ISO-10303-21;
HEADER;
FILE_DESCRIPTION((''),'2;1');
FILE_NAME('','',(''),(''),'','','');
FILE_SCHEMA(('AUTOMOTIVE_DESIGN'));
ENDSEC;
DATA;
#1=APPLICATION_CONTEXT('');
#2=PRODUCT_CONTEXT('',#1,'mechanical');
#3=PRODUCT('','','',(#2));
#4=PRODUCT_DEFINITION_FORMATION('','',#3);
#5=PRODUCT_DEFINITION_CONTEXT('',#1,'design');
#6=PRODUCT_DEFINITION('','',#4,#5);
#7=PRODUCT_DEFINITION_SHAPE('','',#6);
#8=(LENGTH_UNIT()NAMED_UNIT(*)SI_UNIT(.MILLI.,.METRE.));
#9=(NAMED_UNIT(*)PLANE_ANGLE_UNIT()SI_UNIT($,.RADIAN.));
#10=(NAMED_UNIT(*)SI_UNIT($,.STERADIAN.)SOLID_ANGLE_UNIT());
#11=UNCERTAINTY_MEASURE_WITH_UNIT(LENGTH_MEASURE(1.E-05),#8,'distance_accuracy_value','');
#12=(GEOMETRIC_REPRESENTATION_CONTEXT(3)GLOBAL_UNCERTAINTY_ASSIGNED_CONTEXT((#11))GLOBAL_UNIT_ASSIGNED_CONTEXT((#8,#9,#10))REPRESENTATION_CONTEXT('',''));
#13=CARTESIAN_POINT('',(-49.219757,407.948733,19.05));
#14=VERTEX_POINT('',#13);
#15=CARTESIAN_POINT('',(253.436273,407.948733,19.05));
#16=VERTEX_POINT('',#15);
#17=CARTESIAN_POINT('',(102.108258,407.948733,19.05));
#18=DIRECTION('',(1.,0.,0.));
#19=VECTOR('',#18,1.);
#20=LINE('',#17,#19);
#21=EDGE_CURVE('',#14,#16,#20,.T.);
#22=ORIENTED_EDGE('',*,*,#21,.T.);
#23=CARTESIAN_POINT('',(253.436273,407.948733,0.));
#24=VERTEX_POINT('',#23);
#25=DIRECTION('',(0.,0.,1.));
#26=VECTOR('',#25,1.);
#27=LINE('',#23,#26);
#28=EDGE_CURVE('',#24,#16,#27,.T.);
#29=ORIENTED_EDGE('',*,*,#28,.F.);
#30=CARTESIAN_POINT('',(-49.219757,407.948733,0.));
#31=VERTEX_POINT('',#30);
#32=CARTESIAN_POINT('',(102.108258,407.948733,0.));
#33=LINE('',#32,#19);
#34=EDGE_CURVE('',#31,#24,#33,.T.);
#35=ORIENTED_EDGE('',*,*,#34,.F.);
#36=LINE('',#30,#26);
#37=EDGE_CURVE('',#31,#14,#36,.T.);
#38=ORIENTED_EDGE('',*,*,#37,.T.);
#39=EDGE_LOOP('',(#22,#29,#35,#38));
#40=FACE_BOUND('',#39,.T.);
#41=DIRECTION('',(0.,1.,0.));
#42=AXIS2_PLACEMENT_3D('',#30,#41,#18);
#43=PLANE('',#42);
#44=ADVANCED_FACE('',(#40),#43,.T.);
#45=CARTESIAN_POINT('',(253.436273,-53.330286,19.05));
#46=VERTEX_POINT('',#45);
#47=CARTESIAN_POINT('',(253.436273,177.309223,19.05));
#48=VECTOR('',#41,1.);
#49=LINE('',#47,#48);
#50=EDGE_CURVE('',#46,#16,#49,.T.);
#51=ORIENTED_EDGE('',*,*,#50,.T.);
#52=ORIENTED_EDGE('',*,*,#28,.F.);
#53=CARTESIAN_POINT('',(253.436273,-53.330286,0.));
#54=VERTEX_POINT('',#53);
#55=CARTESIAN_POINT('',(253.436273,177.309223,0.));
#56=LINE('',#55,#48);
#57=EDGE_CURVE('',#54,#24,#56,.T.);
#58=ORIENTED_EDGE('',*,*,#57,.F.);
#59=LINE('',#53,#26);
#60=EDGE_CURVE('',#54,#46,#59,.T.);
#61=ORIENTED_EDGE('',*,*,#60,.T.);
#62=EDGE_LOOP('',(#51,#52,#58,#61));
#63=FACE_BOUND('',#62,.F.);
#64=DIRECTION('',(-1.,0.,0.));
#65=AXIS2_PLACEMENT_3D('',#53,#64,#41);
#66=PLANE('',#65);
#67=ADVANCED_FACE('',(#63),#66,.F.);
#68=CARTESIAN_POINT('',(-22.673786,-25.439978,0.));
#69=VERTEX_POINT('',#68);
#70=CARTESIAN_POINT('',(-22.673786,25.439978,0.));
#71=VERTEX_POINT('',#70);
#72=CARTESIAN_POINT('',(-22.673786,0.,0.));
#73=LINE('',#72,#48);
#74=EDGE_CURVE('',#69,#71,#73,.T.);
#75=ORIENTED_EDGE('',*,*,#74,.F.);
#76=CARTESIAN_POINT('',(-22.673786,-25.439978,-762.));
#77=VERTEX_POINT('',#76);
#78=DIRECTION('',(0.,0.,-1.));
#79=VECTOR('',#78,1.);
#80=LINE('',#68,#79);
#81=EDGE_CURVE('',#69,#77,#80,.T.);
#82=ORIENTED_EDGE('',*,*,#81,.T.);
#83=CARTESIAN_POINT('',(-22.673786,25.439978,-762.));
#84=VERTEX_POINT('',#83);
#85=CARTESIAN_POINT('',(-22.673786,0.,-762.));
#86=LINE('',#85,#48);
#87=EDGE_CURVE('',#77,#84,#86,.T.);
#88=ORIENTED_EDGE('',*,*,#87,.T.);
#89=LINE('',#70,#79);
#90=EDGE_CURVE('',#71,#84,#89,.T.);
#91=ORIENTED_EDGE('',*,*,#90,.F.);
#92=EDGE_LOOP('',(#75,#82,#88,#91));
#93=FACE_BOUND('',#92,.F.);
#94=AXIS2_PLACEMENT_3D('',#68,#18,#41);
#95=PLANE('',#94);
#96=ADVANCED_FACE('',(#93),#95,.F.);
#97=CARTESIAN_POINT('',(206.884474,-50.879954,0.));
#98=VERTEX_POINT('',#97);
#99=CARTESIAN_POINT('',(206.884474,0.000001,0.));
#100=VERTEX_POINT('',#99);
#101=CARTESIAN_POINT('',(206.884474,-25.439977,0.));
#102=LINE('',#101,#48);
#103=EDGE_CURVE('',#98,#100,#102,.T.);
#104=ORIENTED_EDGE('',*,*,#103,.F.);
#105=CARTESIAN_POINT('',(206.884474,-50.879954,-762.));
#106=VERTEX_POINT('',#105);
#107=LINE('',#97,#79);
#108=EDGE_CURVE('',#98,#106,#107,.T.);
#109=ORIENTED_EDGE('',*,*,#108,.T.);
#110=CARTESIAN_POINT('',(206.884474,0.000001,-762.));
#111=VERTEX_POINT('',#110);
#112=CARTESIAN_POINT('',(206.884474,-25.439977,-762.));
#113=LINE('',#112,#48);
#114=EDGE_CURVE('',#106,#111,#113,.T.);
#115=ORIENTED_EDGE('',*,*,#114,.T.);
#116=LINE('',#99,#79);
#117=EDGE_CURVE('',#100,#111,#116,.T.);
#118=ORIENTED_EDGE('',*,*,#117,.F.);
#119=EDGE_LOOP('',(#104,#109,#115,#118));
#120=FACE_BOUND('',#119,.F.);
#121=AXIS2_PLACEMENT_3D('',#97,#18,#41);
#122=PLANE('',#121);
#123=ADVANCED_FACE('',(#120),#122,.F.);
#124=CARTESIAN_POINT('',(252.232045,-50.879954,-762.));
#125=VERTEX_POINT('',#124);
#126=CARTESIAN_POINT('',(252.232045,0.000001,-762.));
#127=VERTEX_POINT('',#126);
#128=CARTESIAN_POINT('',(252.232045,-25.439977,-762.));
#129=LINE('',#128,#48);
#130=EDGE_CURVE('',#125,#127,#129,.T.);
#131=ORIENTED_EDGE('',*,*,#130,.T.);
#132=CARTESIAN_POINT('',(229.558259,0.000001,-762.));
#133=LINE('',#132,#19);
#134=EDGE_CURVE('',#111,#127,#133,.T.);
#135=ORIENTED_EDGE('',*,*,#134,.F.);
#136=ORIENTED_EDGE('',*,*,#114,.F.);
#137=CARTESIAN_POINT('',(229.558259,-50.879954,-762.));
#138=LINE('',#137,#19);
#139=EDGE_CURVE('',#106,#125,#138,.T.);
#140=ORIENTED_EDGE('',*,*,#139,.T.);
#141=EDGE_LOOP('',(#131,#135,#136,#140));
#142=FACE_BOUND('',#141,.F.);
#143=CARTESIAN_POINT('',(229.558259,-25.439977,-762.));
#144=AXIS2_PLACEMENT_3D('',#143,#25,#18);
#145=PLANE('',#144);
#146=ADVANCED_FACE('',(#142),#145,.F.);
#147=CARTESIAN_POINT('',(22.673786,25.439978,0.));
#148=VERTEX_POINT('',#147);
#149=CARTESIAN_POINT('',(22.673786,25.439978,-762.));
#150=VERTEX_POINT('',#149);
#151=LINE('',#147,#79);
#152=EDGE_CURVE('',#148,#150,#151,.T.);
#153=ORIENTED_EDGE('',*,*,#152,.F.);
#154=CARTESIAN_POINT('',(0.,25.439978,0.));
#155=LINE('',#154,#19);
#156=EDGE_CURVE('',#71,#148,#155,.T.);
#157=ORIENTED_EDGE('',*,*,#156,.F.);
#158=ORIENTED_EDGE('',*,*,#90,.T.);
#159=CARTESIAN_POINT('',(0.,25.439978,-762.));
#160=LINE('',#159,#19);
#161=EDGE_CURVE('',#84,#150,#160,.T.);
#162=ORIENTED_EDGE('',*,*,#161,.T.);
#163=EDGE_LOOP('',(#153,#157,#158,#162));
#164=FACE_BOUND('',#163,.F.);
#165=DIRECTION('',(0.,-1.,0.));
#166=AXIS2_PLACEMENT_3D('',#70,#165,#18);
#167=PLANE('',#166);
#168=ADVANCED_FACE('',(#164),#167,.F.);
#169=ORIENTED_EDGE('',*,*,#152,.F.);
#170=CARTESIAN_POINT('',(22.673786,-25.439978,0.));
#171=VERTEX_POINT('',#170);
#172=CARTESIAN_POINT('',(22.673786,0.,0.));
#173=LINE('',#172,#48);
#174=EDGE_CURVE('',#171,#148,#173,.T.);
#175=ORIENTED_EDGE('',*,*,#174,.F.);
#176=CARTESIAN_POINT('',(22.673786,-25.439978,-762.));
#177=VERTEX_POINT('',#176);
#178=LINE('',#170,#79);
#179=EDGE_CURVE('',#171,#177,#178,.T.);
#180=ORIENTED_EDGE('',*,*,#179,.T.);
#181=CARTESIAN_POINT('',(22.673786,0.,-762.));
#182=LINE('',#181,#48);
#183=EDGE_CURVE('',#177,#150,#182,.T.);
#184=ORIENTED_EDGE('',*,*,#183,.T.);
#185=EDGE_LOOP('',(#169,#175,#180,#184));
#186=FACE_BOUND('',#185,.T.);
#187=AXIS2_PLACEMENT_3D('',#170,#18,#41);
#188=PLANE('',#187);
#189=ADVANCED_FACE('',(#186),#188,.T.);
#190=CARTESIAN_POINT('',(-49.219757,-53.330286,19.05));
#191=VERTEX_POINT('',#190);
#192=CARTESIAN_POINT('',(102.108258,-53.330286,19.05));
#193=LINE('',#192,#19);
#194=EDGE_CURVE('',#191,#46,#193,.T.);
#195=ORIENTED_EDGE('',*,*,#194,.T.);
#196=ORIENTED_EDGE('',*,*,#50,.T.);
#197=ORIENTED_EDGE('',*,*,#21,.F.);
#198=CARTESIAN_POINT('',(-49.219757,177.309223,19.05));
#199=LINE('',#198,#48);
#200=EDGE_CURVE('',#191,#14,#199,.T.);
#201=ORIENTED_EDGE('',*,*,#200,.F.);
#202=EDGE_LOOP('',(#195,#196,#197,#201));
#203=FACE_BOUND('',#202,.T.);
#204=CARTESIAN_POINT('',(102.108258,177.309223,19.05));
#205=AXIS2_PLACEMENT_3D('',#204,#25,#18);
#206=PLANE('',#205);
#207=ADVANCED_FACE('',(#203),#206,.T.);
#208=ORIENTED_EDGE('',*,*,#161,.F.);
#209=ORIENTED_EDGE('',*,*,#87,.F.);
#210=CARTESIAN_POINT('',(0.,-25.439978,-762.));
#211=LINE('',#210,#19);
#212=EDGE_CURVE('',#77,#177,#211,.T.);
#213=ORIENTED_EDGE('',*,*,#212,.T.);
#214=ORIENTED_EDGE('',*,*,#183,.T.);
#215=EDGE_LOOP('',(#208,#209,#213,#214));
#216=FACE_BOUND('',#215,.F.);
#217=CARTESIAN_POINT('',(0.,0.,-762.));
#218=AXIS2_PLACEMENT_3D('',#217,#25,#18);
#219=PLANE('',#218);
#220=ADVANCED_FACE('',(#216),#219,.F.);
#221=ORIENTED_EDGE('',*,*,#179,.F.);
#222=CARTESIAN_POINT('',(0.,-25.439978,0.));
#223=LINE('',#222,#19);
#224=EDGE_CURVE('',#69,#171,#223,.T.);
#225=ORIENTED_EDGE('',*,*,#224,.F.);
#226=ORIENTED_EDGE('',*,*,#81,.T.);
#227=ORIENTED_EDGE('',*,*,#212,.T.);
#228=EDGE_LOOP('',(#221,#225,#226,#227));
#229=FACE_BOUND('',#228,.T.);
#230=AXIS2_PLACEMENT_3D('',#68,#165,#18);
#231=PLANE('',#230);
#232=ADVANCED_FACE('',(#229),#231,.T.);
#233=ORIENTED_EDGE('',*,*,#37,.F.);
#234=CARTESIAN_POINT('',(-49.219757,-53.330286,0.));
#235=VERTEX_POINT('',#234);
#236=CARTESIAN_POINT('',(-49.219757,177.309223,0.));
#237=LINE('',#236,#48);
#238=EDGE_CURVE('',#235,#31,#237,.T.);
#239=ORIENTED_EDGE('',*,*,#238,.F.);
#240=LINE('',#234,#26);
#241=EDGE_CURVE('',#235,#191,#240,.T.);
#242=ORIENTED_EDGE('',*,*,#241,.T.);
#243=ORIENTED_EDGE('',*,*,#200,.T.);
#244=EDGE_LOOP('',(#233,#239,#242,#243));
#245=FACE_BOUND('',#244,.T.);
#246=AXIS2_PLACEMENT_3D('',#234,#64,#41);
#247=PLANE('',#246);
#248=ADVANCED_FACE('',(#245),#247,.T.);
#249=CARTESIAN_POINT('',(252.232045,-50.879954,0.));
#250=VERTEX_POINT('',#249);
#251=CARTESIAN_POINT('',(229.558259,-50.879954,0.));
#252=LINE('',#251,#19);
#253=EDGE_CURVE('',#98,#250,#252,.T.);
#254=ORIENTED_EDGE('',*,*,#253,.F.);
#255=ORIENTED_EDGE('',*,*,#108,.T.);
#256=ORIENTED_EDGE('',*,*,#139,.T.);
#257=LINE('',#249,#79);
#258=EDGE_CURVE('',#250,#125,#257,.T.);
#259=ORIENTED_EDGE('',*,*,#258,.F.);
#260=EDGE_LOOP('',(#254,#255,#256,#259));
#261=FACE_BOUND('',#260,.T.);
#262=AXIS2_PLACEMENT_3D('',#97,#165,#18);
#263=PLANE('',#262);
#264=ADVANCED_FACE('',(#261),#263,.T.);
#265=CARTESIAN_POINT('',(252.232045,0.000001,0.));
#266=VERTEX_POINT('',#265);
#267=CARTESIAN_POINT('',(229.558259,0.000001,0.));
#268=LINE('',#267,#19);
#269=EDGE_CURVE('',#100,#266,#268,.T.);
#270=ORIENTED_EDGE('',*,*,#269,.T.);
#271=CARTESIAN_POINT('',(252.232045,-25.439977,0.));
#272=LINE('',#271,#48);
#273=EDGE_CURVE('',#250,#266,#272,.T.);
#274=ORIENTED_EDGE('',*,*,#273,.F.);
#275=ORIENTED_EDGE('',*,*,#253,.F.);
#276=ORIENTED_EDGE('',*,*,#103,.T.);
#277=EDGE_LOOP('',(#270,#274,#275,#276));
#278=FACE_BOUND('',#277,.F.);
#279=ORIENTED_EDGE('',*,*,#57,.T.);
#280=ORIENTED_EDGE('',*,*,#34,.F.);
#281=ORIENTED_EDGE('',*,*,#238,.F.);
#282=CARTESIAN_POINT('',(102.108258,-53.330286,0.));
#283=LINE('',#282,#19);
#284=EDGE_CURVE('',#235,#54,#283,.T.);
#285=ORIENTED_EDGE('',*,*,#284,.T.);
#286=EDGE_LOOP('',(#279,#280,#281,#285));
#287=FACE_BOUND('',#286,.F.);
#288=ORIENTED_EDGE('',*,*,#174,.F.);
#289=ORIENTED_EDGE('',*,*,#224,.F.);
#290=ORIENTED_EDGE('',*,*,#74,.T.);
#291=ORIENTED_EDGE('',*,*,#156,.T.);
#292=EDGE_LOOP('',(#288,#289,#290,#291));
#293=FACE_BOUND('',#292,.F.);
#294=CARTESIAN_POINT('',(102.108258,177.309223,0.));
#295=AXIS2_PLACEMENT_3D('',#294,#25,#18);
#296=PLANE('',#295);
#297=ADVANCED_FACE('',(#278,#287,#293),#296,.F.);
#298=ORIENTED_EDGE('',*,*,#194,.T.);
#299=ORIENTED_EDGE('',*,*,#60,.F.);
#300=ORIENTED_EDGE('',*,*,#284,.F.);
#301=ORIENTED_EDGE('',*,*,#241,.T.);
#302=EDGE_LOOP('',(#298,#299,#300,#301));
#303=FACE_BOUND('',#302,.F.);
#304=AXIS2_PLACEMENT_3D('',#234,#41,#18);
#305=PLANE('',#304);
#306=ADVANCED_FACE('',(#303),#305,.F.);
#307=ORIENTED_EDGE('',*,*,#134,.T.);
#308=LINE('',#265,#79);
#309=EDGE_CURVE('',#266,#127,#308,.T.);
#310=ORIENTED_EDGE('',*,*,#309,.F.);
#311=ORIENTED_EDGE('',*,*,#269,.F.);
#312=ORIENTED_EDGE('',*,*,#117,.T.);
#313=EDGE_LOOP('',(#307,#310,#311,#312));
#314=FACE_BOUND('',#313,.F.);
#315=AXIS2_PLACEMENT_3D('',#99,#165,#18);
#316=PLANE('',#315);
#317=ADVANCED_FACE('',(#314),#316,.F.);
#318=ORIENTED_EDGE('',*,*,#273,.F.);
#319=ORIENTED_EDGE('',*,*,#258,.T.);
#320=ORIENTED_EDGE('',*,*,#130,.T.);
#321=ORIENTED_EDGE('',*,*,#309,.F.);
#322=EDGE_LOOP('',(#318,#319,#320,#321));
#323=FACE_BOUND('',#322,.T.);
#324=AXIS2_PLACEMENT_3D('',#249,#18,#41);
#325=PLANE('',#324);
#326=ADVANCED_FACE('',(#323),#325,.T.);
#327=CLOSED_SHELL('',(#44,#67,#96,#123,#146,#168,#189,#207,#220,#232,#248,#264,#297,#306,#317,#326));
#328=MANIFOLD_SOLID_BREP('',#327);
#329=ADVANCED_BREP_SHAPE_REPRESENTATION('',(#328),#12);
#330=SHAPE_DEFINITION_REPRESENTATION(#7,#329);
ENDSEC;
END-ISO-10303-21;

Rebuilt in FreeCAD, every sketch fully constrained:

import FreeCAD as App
import Part
import Sketcher
Q = App.Units.Quantity


def add_polygon(sketch, points):
    """Adds a closed chain of lines whose ends are joined by coincident constraints."""
    first, n = sketch.GeometryCount, len(points)
    for a, b in zip(points, points[1:] + points[:1]):
        sketch.addGeometry(Part.LineSegment(App.Vector(*a, 0), App.Vector(*b, 0)), False)
    for i in range(n):
        sketch.addConstraint(Sketcher.Constraint("Coincident", first + i, 2, first + (i + 1) % n, 1))

doc = App.newDocument("Part")
params = doc.addObject("Spreadsheet::Sheet", "Params")
for row, (alias, value) in enumerate([
    ("pad1_length", "0.75 in"),
    ("pad2_length", "30 in"),
], start=1):
    params.set(f"A{row}", alias)
    params.set(f"B{row}", "=" + value)
    params.setAlias(f"B{row}", alias)

body = doc.addObject("PartDesign::Body", "Body")

# Sketch on XY plane
sketch1 = body.newObject("Sketcher::SketchObject", "Sketch")
sketch1.AttachmentSupport = (doc.getObject("XY_Plane"), [""])
sketch1.MapMode = "FlatFace"
add_polygon(sketch1, [(-49.219757, 407.948733), (-49.219757, -53.330286), (253.436273, -53.330286), (253.436273, 407.948733)])  # lines 0-3
sketch1.addConstraint([
    Sketcher.Constraint("Vertical", 0),
    Sketcher.Constraint("Horizontal", 1),
    Sketcher.Constraint("Vertical", 2),
    Sketcher.Constraint("Horizontal", 3),
    Sketcher.Constraint("DistanceX", 1, 1, 1, 2, Q("302.65603 mm")),
    Sketcher.Constraint("DistanceY", 0, 2, 0, 1, Q("461.279019 mm")),
    Sketcher.Constraint("DistanceX", 0, 2, -1, 1, Q("49.219757 mm")),
    Sketcher.Constraint("DistanceY", 0, 2, -1, 1, Q("53.330286 mm")),
])
pad1 = body.newObject("PartDesign::Pad", "Pad")
pad1.Profile = sketch1
pad1.setExpression("Length", "Params.pad1_length")

# Sketch on XY plane
sketch2 = body.newObject("Sketcher::SketchObject", "Sketch001")
sketch2.AttachmentSupport = (doc.getObject("XY_Plane"), [""])
sketch2.MapMode = "FlatFace"
add_polygon(sketch2, [(206.884474, 0), (206.884474, -50.879954), (252.232045, -50.879954), (252.232045, 0)])  # lines 0-3
add_polygon(sketch2, [(-22.673786, 25.439978), (-22.673786, -25.439978), (22.673786, -25.439978), (22.673786, 25.439978)])  # lines 4-7
sketch2.addConstraint([
    Sketcher.Constraint("Vertical", 0),
    Sketcher.Constraint("Horizontal", 1),
    Sketcher.Constraint("Vertical", 2),
    Sketcher.Constraint("Horizontal", 3),
    Sketcher.Constraint("Vertical", 4),
    Sketcher.Constraint("Horizontal", 5),
    Sketcher.Constraint("Vertical", 6),
    Sketcher.Constraint("Horizontal", 7),
    Sketcher.Constraint("Symmetric", 4, 2, 6, 2, -1, 1),
    Sketcher.Constraint("PointOnObject", 2, 2, -1),
    Sketcher.Constraint("Equal", 3, 5),
    Sketcher.Constraint("Equal", 2, 4),
    Sketcher.Constraint("DistanceX", 1, 1, 1, 2, Q("45.347571 mm")),
    Sketcher.Constraint("DistanceY", 0, 2, 0, 1, Q("50.879955 mm")),
    Sketcher.Constraint("DistanceX", 4, 2, 0, 2, Q("229.55826 mm")),
])
pad2 = body.newObject("PartDesign::Pad", "Pad001")
pad2.Profile = sketch2
pad2.setExpression("Length", "Params.pad2_length")
pad2.Reversed = True

doc.recompute()
